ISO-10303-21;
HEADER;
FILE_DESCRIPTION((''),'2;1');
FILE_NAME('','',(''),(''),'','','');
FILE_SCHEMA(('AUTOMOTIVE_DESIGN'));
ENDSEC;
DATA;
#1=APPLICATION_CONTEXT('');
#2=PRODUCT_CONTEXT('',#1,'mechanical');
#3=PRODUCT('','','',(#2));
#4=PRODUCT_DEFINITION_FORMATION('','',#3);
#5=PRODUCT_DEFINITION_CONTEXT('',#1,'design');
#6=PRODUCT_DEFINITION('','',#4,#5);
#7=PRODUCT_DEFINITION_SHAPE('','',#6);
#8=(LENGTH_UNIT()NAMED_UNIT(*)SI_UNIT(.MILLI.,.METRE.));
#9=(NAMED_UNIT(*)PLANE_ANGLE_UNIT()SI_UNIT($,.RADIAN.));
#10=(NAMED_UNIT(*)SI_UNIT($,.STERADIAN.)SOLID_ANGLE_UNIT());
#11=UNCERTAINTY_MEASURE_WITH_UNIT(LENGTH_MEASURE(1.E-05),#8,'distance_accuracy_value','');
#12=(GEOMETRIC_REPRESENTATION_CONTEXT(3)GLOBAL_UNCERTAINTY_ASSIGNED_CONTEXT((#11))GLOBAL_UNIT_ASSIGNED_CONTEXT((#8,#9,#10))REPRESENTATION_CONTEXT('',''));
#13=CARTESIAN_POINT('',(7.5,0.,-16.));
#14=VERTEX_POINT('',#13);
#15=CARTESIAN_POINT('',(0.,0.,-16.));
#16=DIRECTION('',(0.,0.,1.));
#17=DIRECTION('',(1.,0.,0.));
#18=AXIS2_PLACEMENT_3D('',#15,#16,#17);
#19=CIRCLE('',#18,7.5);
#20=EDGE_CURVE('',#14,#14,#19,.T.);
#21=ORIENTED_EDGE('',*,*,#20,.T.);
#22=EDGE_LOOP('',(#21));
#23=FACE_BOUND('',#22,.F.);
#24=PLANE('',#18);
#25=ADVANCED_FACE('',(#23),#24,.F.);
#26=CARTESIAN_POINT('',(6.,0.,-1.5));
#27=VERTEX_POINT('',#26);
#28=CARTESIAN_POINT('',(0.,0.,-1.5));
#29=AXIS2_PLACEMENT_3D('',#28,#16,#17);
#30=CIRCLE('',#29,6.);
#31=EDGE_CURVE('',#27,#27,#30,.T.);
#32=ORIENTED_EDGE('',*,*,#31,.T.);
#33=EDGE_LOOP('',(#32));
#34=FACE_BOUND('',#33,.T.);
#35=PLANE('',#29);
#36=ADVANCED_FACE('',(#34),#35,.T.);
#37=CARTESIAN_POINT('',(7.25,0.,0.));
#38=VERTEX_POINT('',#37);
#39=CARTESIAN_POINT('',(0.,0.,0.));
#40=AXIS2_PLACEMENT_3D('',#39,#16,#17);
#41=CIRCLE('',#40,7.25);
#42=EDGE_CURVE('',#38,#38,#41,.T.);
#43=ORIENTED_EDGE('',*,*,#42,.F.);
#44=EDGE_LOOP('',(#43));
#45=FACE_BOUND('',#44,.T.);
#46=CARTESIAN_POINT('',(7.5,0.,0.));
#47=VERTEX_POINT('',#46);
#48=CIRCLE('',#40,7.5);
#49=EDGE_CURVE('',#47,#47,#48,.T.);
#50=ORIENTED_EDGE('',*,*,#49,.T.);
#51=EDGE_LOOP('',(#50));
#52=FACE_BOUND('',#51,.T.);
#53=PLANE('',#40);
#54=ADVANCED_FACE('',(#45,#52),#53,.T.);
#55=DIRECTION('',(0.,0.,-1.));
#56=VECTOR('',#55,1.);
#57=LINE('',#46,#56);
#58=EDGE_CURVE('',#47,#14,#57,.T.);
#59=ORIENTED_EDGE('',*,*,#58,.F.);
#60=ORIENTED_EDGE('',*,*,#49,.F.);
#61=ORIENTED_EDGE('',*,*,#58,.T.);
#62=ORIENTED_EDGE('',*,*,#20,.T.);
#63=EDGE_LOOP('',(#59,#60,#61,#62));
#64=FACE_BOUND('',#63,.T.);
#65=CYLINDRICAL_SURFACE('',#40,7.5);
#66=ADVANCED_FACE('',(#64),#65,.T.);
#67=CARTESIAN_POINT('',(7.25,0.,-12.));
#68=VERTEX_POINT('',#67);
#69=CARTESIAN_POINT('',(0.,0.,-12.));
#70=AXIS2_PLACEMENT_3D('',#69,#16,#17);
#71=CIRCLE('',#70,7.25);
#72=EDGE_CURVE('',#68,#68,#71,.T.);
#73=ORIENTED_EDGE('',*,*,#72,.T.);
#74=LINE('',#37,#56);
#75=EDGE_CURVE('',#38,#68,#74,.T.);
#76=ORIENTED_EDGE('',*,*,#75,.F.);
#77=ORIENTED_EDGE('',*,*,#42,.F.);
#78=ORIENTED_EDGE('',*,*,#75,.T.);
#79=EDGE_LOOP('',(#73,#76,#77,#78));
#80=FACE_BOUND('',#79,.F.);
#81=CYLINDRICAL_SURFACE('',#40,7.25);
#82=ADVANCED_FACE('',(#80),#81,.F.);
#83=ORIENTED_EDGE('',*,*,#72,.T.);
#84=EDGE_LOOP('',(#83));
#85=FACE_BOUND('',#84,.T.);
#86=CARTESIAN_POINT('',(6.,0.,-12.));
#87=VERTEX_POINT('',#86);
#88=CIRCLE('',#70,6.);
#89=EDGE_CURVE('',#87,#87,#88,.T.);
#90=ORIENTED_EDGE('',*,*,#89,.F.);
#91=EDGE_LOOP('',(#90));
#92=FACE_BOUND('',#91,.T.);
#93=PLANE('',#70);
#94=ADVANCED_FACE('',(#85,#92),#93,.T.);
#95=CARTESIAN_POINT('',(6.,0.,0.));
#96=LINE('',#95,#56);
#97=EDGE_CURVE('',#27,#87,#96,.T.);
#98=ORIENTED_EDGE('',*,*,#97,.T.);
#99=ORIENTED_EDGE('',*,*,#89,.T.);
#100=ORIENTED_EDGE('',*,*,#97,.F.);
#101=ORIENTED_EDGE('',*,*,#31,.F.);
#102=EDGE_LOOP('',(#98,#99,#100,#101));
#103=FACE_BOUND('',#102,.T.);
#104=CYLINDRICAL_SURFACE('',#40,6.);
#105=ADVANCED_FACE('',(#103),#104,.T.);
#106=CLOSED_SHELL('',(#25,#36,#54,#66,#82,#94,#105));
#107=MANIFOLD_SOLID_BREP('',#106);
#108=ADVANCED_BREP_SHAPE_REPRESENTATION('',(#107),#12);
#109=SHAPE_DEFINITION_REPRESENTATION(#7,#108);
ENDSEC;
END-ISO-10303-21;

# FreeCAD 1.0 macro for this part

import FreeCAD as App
import Part
import Sketcher

V = App.Vector

doc = App.newDocument("Part")
body = doc.addObject("PartDesign::Body", "Body")

sketch1 = body.newObject("Sketcher::SketchObject", "Sketch")
sketch1.AttachmentSupport = (doc.getObject("XY_Plane"), [""])
sketch1.MapMode = "FlatFace"
sketch1.addGeometry(Part.Circle(V(0, 0, 0), V(0, 0, 1), 8), False)
sketch1.addConstraint(Sketcher.Constraint("Coincident", 0, 3, -1, 1))
sketch1.addConstraint(Sketcher.Constraint("Diameter", 0, 15.0))
pad1 = body.newObject("PartDesign::Pad", "Pad")
pad1.Profile = sketch1
pad1.Length = 16
pad1.Reversed = True

sketch2 = body.newObject("Sketcher::SketchObject", "Sketch001")
sketch2.AttachmentSupport = (doc.getObject("XY_Plane"), [""])
sketch2.MapMode = "FlatFace"
sketch2.addGeometry(Part.Circle(V(0, 0, 0), V(0, 0, 1), 7), False)
sketch2.addGeometry(Part.Circle(V(0, 0, 0), V(0, 0, 1), 6), False)
sketch2.addConstraint(Sketcher.Constraint("Coincident", 0, 3, -1, 1))
sketch2.addConstraint(Sketcher.Constraint("Coincident", 1, 3, -1, 1))
sketch2.addConstraint(Sketcher.Constraint("Diameter", 1, 12.0))
sketch2.addConstraint(Sketcher.Constraint("Diameter", 0, 14.5))
pocket1 = body.newObject("PartDesign::Pocket", "Pocket")
pocket1.Profile = sketch2
pocket1.Length = 12

sketch3 = body.newObject("Sketcher::SketchObject", "Sketch002")
sketch3.AttachmentSupport = (doc.getObject("XY_Plane"), [""])
sketch3.MapMode = "FlatFace"
sketch3.addGeometry(Part.Circle(V(0, 0, 0), V(0, 0, 1), 6), False)
sketch3.addConstraint(Sketcher.Constraint("Coincident", 0, 3, -1, 1))
sketch3.addConstraint(Sketcher.Constraint("Diameter", 0, 12.0))
pocket2 = body.newObject("PartDesign::Pocket", "Pocket001")
pocket2.Profile = sketch3
pocket2.Length = 1.5

doc.recompute()
